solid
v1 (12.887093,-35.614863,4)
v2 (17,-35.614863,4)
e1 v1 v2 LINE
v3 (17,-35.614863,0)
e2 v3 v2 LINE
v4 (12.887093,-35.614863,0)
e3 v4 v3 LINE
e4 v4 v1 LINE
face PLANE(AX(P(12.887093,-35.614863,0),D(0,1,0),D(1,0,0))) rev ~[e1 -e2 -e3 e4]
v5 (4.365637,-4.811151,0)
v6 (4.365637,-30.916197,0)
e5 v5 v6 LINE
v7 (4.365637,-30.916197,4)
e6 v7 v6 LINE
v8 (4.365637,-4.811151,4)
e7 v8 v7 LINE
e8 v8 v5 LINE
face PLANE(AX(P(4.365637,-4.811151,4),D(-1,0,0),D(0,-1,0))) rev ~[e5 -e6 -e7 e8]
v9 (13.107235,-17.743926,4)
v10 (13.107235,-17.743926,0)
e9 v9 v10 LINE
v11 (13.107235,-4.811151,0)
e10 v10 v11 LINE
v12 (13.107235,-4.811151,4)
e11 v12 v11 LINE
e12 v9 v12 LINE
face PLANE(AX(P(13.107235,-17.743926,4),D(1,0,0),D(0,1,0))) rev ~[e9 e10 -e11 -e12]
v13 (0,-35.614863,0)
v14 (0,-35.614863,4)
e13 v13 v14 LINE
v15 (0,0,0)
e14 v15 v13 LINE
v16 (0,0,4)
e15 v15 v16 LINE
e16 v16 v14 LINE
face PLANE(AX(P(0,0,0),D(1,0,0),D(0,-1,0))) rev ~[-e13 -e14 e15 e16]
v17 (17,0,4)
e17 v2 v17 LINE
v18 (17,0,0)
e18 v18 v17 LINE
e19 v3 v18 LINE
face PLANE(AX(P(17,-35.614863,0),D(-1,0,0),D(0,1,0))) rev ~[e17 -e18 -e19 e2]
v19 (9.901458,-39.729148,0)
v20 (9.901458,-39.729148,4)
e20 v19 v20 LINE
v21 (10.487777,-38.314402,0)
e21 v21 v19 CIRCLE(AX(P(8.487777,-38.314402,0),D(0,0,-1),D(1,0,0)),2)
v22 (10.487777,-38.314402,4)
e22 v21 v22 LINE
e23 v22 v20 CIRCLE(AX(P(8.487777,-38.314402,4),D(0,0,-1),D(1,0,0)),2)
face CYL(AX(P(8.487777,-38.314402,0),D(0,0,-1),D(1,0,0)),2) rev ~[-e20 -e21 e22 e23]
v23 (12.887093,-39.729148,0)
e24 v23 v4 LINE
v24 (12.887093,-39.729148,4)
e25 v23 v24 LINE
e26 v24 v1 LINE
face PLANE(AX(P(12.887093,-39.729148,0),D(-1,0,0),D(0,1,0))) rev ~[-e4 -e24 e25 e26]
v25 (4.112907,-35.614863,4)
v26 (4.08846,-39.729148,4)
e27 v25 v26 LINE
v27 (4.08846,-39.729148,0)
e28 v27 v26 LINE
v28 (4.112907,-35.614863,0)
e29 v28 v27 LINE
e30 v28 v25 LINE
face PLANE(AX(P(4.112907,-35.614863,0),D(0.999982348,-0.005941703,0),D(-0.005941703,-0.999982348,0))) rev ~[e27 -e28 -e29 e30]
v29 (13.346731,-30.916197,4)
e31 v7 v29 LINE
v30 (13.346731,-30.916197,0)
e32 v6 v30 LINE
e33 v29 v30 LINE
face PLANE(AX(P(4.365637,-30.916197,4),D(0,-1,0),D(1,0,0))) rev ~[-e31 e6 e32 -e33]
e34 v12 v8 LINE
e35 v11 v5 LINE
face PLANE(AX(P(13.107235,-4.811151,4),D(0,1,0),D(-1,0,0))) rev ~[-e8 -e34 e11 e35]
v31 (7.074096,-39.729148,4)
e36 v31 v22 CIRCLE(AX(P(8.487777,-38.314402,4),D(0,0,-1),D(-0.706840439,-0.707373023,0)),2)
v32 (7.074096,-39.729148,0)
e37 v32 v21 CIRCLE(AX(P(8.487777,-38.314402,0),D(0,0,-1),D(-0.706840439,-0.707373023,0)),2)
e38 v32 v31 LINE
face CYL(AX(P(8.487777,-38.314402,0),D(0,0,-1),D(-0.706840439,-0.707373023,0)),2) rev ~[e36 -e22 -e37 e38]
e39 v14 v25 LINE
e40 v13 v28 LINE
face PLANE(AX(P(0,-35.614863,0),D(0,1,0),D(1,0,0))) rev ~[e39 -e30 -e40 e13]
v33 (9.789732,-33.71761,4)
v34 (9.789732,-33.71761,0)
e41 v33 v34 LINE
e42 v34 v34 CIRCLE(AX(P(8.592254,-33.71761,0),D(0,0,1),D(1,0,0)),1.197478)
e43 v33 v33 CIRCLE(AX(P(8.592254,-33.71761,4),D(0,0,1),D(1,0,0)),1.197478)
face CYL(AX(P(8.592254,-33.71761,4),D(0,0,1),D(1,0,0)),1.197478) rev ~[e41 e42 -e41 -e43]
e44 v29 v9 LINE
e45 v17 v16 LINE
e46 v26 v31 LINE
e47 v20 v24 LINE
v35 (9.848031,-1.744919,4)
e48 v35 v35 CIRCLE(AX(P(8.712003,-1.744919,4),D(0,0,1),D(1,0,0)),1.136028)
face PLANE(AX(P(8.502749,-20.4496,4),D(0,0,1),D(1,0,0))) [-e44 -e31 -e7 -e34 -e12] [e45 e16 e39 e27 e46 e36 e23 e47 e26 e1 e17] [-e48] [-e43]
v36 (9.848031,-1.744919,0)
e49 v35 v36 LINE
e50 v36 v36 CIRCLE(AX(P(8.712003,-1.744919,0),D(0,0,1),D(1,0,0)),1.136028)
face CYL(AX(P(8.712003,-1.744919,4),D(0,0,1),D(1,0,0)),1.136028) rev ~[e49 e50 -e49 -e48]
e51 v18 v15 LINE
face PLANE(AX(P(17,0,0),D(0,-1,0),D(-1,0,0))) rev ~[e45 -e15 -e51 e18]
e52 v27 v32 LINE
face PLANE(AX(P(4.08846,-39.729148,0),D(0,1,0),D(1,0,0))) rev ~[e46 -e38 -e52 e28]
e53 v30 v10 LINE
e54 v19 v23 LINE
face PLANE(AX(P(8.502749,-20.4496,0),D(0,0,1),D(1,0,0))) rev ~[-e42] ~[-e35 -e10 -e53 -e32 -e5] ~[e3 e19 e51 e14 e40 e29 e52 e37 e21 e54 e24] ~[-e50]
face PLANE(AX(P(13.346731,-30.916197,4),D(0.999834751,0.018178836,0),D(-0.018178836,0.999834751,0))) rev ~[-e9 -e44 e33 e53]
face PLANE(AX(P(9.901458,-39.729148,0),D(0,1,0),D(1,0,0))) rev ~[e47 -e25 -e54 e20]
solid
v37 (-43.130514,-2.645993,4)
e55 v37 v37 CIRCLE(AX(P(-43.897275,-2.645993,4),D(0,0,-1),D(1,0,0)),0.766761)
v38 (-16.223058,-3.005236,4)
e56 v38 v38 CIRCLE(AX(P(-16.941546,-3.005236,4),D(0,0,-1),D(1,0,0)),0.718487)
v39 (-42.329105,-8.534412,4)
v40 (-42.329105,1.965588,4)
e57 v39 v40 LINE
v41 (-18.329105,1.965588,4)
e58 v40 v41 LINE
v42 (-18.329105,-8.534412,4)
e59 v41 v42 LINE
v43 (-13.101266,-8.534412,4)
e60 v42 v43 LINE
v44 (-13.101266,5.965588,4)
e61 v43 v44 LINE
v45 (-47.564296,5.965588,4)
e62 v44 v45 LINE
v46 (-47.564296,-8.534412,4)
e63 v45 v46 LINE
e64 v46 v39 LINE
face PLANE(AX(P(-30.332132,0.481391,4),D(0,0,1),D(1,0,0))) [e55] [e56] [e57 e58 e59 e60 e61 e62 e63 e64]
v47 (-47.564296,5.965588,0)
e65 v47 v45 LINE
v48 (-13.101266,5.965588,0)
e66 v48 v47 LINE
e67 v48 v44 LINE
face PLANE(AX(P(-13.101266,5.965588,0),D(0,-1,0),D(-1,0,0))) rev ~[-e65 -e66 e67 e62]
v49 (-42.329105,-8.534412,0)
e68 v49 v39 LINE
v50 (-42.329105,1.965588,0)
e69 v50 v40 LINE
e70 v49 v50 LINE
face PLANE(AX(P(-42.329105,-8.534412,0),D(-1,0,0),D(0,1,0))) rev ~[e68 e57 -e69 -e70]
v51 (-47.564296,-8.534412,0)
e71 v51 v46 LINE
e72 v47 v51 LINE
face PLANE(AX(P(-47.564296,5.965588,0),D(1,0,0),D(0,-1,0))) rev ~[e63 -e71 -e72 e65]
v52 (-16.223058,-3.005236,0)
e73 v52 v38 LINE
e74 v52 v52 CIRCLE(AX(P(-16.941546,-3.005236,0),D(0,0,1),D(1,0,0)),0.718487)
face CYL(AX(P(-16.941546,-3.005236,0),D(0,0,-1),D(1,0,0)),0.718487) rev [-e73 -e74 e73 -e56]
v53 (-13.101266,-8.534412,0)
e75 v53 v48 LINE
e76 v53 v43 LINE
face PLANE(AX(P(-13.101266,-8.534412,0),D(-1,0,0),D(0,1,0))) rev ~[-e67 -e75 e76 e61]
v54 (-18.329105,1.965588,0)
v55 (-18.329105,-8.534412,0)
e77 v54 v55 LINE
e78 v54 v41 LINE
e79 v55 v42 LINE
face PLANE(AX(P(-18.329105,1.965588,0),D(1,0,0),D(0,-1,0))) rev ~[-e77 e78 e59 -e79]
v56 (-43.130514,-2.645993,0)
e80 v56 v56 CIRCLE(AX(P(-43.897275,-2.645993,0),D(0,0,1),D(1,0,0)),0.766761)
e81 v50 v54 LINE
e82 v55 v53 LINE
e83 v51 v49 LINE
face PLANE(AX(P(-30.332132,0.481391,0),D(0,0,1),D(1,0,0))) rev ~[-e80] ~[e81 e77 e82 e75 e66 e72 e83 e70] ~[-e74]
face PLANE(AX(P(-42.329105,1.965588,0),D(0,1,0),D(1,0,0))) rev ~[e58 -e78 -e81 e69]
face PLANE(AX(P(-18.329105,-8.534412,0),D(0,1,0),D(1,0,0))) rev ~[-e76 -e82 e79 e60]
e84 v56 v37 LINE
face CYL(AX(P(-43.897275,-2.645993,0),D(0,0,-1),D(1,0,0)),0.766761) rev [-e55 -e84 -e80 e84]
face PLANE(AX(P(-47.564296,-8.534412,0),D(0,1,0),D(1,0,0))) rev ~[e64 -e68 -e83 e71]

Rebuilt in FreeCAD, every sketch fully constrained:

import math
import FreeCAD as App
import Part
import Sketcher

V = App.Vector


def add_polygon(sketch, points):
    """Adds a closed chain of lines whose ends are joined by coincident constraints."""
    first, n = sketch.GeometryCount, len(points)
    for a, b in zip(points, points[1:] + points[:1]):
        sketch.addGeometry(Part.LineSegment(App.Vector(*a, 0), App.Vector(*b, 0)), False)
    for i in range(n):
        sketch.addConstraint(Sketcher.Constraint("Coincident", first + i, 2, first + (i + 1) % n, 1))

doc = App.newDocument("Part")
body = doc.addObject("PartDesign::Body", "Body")

# Sketch on XY plane
sketch1 = body.newObject("Sketcher::SketchObject", "Sketch")
sketch1.AttachmentSupport = (doc.getObject("XY_Plane"), [""])
sketch1.MapMode = "FlatFace"
add_polygon(sketch1, [(-13, 6), (-48, 6), (-48, -9), (-42, -9), (-42, 2), (-18, 2), (-18, -9), (-13, -9)])  # lines 0-7
sketch1.addConstraint([
    Sketcher.Constraint("Horizontal", 0),
    Sketcher.Constraint("Vertical", 1),
    Sketcher.Constraint("Horizontal", 2),
    Sketcher.Constraint("Vertical", 3),
    Sketcher.Constraint("Horizontal", 4),
    Sketcher.Constraint("Vertical", 5),
    Sketcher.Constraint("Horizontal", 6),
    Sketcher.Constraint("Vertical", 7),
    Sketcher.Constraint("Horizontal", 2, 2, 5, 2),
    Sketcher.Constraint("DistanceX", 4, 1, 4, 2, 24.0),
    Sketcher.Constraint("DistanceY", 1, 2, 1, 1, 14.5),
    Sketcher.Constraint("DistanceY", 3, 1, 3, 2, 10.5),
    Sketcher.Constraint("DistanceX", 0, 2, 0, 1, 34.463031),
    Sketcher.Constraint("DistanceX", 2, 1, 2, 2, 5.235191),
    Sketcher.Constraint("DistanceX", 0, 2, -1, 1, 47.564296),
    Sketcher.Constraint("DistanceY", -1, 1, 0, 2, 5.965588),
])
pad1 = body.newObject("PartDesign::Pad", "Pad")
pad1.Profile = sketch1
pad1.Length = 4

# Sketch on XY plane
sketch2 = body.newObject("Sketcher::SketchObject", "Sketch001")
sketch2.AttachmentSupport = (doc.getObject("XY_Plane"), [""])
sketch2.MapMode = "FlatFace"
sketch2.addGeometry(Part.Circle(V(-16.9, -3, 0), V(0, 0, 1), 0.7), False)
sketch2.addConstraint([
    Sketcher.Constraint("Diameter", 0, 1.436975),
    Sketcher.Constraint("DistanceX", 0, 3, -1, 1, 16.941546),
    Sketcher.Constraint("DistanceY", 0, 3, -1, 1, 3.005236),
])
pocket1 = body.newObject("PartDesign::Pocket", "Pocket")
pocket1.Profile = sketch2
pocket1.Length = 15.1
pocket1.Reversed = True

# Sketch on XY plane
sketch3 = body.newObject("Sketcher::SketchObject", "Sketch002")
sketch3.AttachmentSupport = (doc.getObject("XY_Plane"), [""])
sketch3.MapMode = "FlatFace"
sketch3.addGeometry(Part.Circle(V(-43.9, -2.6, 0), V(0, 0, 1), 0.8), False)
sketch3.addConstraint([
    Sketcher.Constraint("Diameter", 0, 1.533522),
    Sketcher.Constraint("DistanceX", 0, 3, -1, 1, 43.897275),
    Sketcher.Constraint("DistanceY", 0, 3, -1, 1, 2.645993),
])
pocket2 = body.newObject("PartDesign::Pocket", "Pocket001")
pocket2.Profile = sketch3
pocket2.Length = 25
pocket2.Reversed = True

# Sketch on XY plane
sketch4 = body.newObject("Sketcher::SketchObject", "Sketch003")
sketch4.AttachmentSupport = (doc.getObject("XY_Plane"), [""])
sketch4.MapMode = "FlatFace"
sketch4.AttachmentOffset = App.Placement(V(0, 0, 4), App.Rotation())
sketch4.addGeometry(Part.Circle(V(8.6, -2.1, 0), V(0, 0, 1), 1), False)
sketch4.addConstraint([
    Sketcher.Constraint("Diameter", 0, 1.974933),
    Sketcher.Constraint("DistanceY", 0, 3, -1, 1, 2.050929),
    Sketcher.Constraint("DistanceX", -1, 1, 0, 3, 8.552037),
])
pocket3 = body.newObject("PartDesign::Pocket", "Pocket002")
pocket3.Profile = sketch4
pocket3.Length = 55.7
pocket3.Reversed = True
body2 = doc.addObject("PartDesign::Body", "Body001")

# Sketch on XY plane
sketch5 = body2.newObject("Sketcher::SketchObject", "Sketch004")
sketch5.AttachmentSupport = (doc.getObject("XY_Plane001"), [""])
sketch5.MapMode = "FlatFace"
sketch5.addGeometry([
    Part.LineSegment(V(0, 0, 0), V(0, -35.6, 0)),  # 0
    Part.LineSegment(V(0, -35.6, 0), V(4.1, -35.6, 0)),  # 1
    Part.LineSegment(V(4.1, -35.6, 0), V(4.1, -39.7, 0)),  # 2
    Part.LineSegment(V(4.1, -39.7, 0), V(7.1, -39.7, 0)),  # 3
    Part.ArcOfCircle(Part.Circle(V(8.5, -38.3, 0), V(0, 0, 1), 2), math.radians(0), math.radians(225)),  # 4
    Part.ArcOfCircle(Part.Circle(V(8.5, -38.3, 0), V(0, 0, 1), 2), math.radians(-45), math.radians(0)),  # 5
    Part.LineSegment(V(9.9, -39.7, 0), V(12.9, -39.7, 0)),  # 6
    Part.LineSegment(V(12.9, -39.7, 0), V(12.9, -35.6, 0)),  # 7
    Part.LineSegment(V(12.9, -35.6, 0), V(17, -35.6, 0)),  # 8
    Part.LineSegment(V(17, -35.6, 0), V(17, 0, 0)),  # 9
    Part.LineSegment(V(17, 0, 0), V(0, 0, 0)),  # 10
], False)
sketch5.addConstraint([
    Sketcher.Constraint("Coincident", 0, 2, 1, 1),
    Sketcher.Constraint("Coincident", 1, 2, 2, 1),
    Sketcher.Constraint("Coincident", 2, 2, 3, 1),
    Sketcher.Constraint("Coincident", 3, 2, 4, 2),
    Sketcher.Constraint("Tangent", 4, 1, 5, 2),
    Sketcher.Constraint("Coincident", 5, 1, 6, 1),
    Sketcher.Constraint("Coincident", 6, 2, 7, 1),
    Sketcher.Constraint("Coincident", 7, 2, 8, 1),
    Sketcher.Constraint("Coincident", 8, 2, 9, 1),
    Sketcher.Constraint("Coincident", 9, 2, 10, 1),
    Sketcher.Constraint("Coincident", 10, 2, 0, 1),
    Sketcher.Constraint("Vertical", 0),
    Sketcher.Constraint("Horizontal", 1),
    Sketcher.Constraint("Horizontal", 3),
    Sketcher.Constraint("Horizontal", 6),
    Sketcher.Constraint("Vertical", 7),
    Sketcher.Constraint("Horizontal", 8),
    Sketcher.Constraint("Vertical", 9),
    Sketcher.Constraint("Horizontal", 10),
    Sketcher.Constraint("Coincident", 10, 2, -1, 1),
    Sketcher.Constraint("Equal", 4, 5),
    Sketcher.Constraint("Horizontal", 5, 3, 4, 1),
    Sketcher.Constraint("Horizontal", 3, 2, 5, 1),
    Sketcher.Constraint("Horizontal", 1, 2, 7, 2),
    Sketcher.Constraint("Equal", 3, 6),
    Sketcher.Constraint("Equal", 1, 8),
    Sketcher.Constraint("Radius", 4, 2.0),
    Sketcher.Constraint("DistanceX", 10, 2, 10, 1, 17.0),
    Sketcher.Constraint("DistanceX", 1, 1, 1, 2, 4.112907),
    Sketcher.Constraint("DistanceX", 3, 1, 3, 2, 2.985636),
    Sketcher.Constraint("DistanceY", 0, 2, 0, 1, 35.614863),
    Sketcher.Constraint("DistanceY", 7, 1, 7, 2, 4.114285),
    Sketcher.Constraint("DistanceX", -1, 1, 2, 2, 4.08846),
])
pad2 = body2.newObject("PartDesign::Pad", "Pad001")
pad2.Profile = sketch5
pad2.Length = 4

# Sketch on XY plane
sketch6 = body2.newObject("Sketcher::SketchObject", "Sketch005")
sketch6.AttachmentSupport = (doc.getObject("XY_Plane001"), [""])
sketch6.MapMode = "FlatFace"
sketch6.AttachmentOffset = App.Placement(V(0, 0, 4), App.Rotation())
sketch6.addGeometry([
    Part.LineSegment(V(17, -35.6, 0), V(17, 0, 0)),  # 0
    Part.LineSegment(V(17, 0, 0), V(0, 0, 0)),  # 1
    Part.LineSegment(V(0, 0, 0), V(0, -35.6, 0)),  # 2
    Part.LineSegment(V(0, -35.6, 0), V(4.1, -35.6, 0)),  # 3
    Part.LineSegment(V(4.1, -35.6, 0), V(4.1, -39.7, 0)),  # 4
    Part.LineSegment(V(4.1, -39.7, 0), V(7.1, -39.7, 0)),  # 5
    Part.ArcOfCircle(Part.Circle(V(8.5, -38.3, 0), V(0, 0, 1), 2), math.radians(0), math.radians(225)),  # 6
    Part.ArcOfCircle(Part.Circle(V(8.5, -38.3, 0), V(0, 0, 1), 2), math.radians(-45), math.radians(0)),  # 7
    Part.LineSegment(V(9.9, -39.7, 0), V(12.9, -39.7, 0)),  # 8
    Part.LineSegment(V(12.9, -39.7, 0), V(12.9, -35.6, 0)),  # 9
    Part.LineSegment(V(12.9, -35.6, 0), V(17, -35.6, 0)),  # 10
], False)
sketch6.addConstraint([
    Sketcher.Constraint("Coincident", 0, 2, 1, 1),
    Sketcher.Constraint("Coincident", 1, 2, 2, 1),
    Sketcher.Constraint("Coincident", 2, 2, 3, 1),
    Sketcher.Constraint("Coincident", 3, 2, 4, 1),
    Sketcher.Constraint("Coincident", 4, 2, 5, 1),
    Sketcher.Constraint("Coincident", 5, 2, 6, 2),
    Sketcher.Constraint("Tangent", 6, 1, 7, 2),
    Sketcher.Constraint("Coincident", 7, 1, 8, 1),
    Sketcher.Constraint("Coincident", 8, 2, 9, 1),
    Sketcher.Constraint("Coincident", 9, 2, 10, 1),
    Sketcher.Constraint("Coincident", 10, 2, 0, 1),
    Sketcher.Constraint("Vertical", 0),
    Sketcher.Constraint("Horizontal", 1),
    Sketcher.Constraint("Vertical", 2),
    Sketcher.Constraint("Horizontal", 3),
    Sketcher.Constraint("Horizontal", 5),
    Sketcher.Constraint("Horizontal", 8),
    Sketcher.Constraint("Vertical", 9),
    Sketcher.Constraint("Horizontal", 10),
    Sketcher.Constraint("Coincident", 1, 2, -1, 1),
    Sketcher.Constraint("Equal", 6, 7),
    Sketcher.Constraint("Horizontal", 7, 3, 6, 1),
    Sketcher.Constraint("Horizontal", 5, 2, 7, 1),
    Sketcher.Constraint("Horizontal", 3, 2, 9, 2),
    Sketcher.Constraint("Equal", 5, 8),
    Sketcher.Constraint("Equal", 3, 10),
    Sketcher.Constraint("Radius", 6, 2.0),
    Sketcher.Constraint("DistanceX", 1, 2, 1, 1, 17.0),
    Sketcher.Constraint("DistanceX", 3, 1, 3, 2, 4.112907),
    Sketcher.Constraint("DistanceX", 5, 1, 5, 2, 2.985636),
    Sketcher.Constraint("DistanceY", 0, 1, 0, 2, 35.614863),
    Sketcher.Constraint("DistanceY", 9, 1, 9, 2, 4.114285),
    Sketcher.Constraint("DistanceX", -1, 1, 4, 2, 4.08846),
])
pad3 = body2.newObject("PartDesign::Pad", "Pad002")
pad3.Profile = sketch6
pad3.Length = 4
pad3.Reversed = True

# Sketch on XY plane
sketch7 = body2.newObject("Sketcher::SketchObject", "Sketch006")
sketch7.AttachmentSupport = (doc.getObject("XY_Plane001"), [""])
sketch7.MapMode = "FlatFace"
sketch7.AttachmentOffset = App.Placement(V(0, 0, 4), App.Rotation())
add_polygon(sketch7, [(13, -5), (4, -5), (4, -31), (13, -31), (13, -18)])  # lines 0-4
sketch7.addConstraint([
    Sketcher.Constraint("Horizontal", 0),
    Sketcher.Constraint("Vertical", 1),
    Sketcher.Constraint("Horizontal", 2),
    Sketcher.Constraint("Vertical", 4),
    Sketcher.Constraint("DistanceX", 0, 2, 0, 1, 8.741597),
    Sketcher.Constraint("DistanceX", 2, 1, 2, 2, 8.981093),
    Sketcher.Constraint("DistanceY", 1, 2, 1, 1, 26.105046),
    Sketcher.Constraint("DistanceY", 4, 1, 4, 2, 12.932776),
    Sketcher.Constraint("DistanceY", 0, 2, -1, 1, 4.811151),
    Sketcher.Constraint("DistanceX", -1, 1, 2, 2, 13.346731),
])
pocket4 = body2.newObject("PartDesign::Pocket", "Pocket003")
pocket4.Profile = sketch7
pocket4.Length = 25

# Sketch on XY plane
sketch8 = body2.newObject("Sketcher::SketchObject", "Sketch007")
sketch8.AttachmentSupport = (doc.getObject("XY_Plane001"), [""])
sketch8.MapMode = "FlatFace"
sketch8.AttachmentOffset = App.Placement(V(0, 0, 4), App.Rotation())
sketch8.addGeometry([
    Part.Circle(V(8.7, -1.7, 0), V(0, 0, 1), 1.1),
    Part.Circle(V(8.6, -33.7, 0), V(0, 0, 1), 1.2),
], False)
sketch8.addConstraint([
    Sketcher.Constraint("Diameter", 0, 2.272056),
    Sketcher.Constraint("Diameter", 1, 2.394956),
    Sketcher.Constraint("DistanceY", 0, 3, -1, 1, 1.744919),
    Sketcher.Constraint("DistanceY", 1, 3, -1, 1, 33.71761),
    Sketcher.Constraint("DistanceX", 1, 3, 0, 3, 0.119749),
    Sketcher.Constraint("DistanceX", -1, 1, 0, 3, 8.712003),
])
pocket5 = body2.newObject("PartDesign::Pocket", "Pocket004")
pocket5.Profile = sketch8
pocket5.Length = 25

doc.recompute()
